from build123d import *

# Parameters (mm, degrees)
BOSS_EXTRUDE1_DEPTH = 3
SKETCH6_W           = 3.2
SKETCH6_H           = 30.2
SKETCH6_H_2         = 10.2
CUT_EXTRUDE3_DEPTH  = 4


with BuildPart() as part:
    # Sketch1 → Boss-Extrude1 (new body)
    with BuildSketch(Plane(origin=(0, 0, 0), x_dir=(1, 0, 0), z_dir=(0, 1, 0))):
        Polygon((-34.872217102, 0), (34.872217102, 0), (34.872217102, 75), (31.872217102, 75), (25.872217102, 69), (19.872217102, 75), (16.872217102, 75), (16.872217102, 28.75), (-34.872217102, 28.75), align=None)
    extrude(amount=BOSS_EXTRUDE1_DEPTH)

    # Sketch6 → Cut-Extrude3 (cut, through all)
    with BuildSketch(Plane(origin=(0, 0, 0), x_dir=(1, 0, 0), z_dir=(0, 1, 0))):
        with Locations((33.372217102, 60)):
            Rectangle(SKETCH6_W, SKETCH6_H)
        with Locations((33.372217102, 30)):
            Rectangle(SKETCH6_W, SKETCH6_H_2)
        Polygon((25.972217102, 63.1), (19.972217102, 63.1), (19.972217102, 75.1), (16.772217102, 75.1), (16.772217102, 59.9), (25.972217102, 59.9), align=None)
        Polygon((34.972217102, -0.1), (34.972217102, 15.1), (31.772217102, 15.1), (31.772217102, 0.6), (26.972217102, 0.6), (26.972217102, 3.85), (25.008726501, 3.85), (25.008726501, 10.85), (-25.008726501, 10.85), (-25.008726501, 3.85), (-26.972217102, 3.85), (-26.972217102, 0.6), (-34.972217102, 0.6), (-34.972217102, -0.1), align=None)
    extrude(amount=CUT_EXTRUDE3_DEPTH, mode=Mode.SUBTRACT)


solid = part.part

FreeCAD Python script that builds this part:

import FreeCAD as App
import Part
import Sketcher

V = App.Vector

doc = App.newDocument("Part")
body = doc.addObject("PartDesign::Body", "Body")

# Sketch on XZ plane
sketch1 = body.newObject("Sketcher::SketchObject", "Sketch")
sketch1.AttachmentSupport = (doc.getObject("XZ_Plane"), [""])
sketch1.MapMode = "FlatFace"
sketch1.addGeometry(Part.LineSegment(V(-34.872217, 0, 0), V(34.872217, 0, 0)), False)
sketch1.addGeometry(Part.LineSegment(V(34.872217, 0, 0), V(34.872217, -75, 0)), False)
sketch1.addGeometry(Part.LineSegment(V(34.872217, -75, 0), V(31.872217, -75, 0)), False)
sketch1.addGeometry(Part.LineSegment(V(31.872217, -75, 0), V(25.872217, -69, 0)), False)
sketch1.addGeometry(Part.LineSegment(V(25.872217, -69, 0), V(19.872217, -75, 0)), False)
sketch1.addGeometry(Part.LineSegment(V(19.872217, -75, 0), V(16.872217, -75, 0)), False)
sketch1.addGeometry(Part.LineSegment(V(16.872217, -75, 0), V(16.872217, -28.75, 0)), False)
sketch1.addGeometry(Part.LineSegment(V(16.872217, -28.75, 0), V(-34.872217, -28.75, 0)), False)
sketch1.addGeometry(Part.LineSegment(V(-34.872217, -28.75, 0), V(-34.872217, 0, 0)), False)
sketch1.addConstraint(Sketcher.Constraint("Coincident", 0, 2, 1, 1))
sketch1.addConstraint(Sketcher.Constraint("Coincident", 1, 2, 2, 1))
sketch1.addConstraint(Sketcher.Constraint("Coincident", 2, 2, 3, 1))
sketch1.addConstraint(Sketcher.Constraint("Coincident", 3, 2, 4, 1))
sketch1.addConstraint(Sketcher.Constraint("Coincident", 4, 2, 5, 1))
sketch1.addConstraint(Sketcher.Constraint("Coincident", 5, 2, 6, 1))
sketch1.addConstraint(Sketcher.Constraint("Coincident", 6, 2, 7, 1))
sketch1.addConstraint(Sketcher.Constraint("Coincident", 7, 2, 8, 1))
sketch1.addConstraint(Sketcher.Constraint("Coincident", 8, 2, 0, 1))
sketch1.addConstraint(Sketcher.Constraint("Horizontal", 0))
sketch1.addConstraint(Sketcher.Constraint("Vertical", 1))
sketch1.addConstraint(Sketcher.Constraint("Horizontal", 2))
sketch1.addConstraint(Sketcher.Constraint("Horizontal", 5))
sketch1.addConstraint(Sketcher.Constraint("Vertical", 6))
sketch1.addConstraint(Sketcher.Constraint("Horizontal", 7))
sketch1.addConstraint(Sketcher.Constraint("Vertical", 8))
sketch1.addConstraint(Sketcher.Constraint("Symmetric", 0, 2, 8, 2, -1, 1))
sketch1.addConstraint(Sketcher.Constraint("Perpendicular", 3, 4))
sketch1.addConstraint(Sketcher.Constraint("Horizontal", 2, 2, 4, 2))
sketch1.addConstraint(Sketcher.Constraint("Equal", 2, 5))
sketch1.addConstraint(Sketcher.Constraint("Equal", 3, 4))
sketch1.addConstraint(Sketcher.Constraint("DistanceX", 2, 2, 2, 1, 3.0))
sketch1.addConstraint(Sketcher.Constraint("DistanceY", 1, 2, 1, 1, 75.0))
sketch1.addConstraint(Sketcher.Constraint("DistanceY", 3, 2, -1, 1, 69.0))
sketch1.addConstraint(Sketcher.Constraint("DistanceY", 6, 1, 6, 2, 46.25))
sketch1.addConstraint(Sketcher.Constraint("DistanceX", 0, 1, 0, 2, 69.744434))
pad1 = body.newObject("PartDesign::Pad", "Pad")
pad1.Profile = sketch1
pad1.Length = 3
pad1.Reversed = True

# Sketch on XZ plane
sketch2 = body.newObject("Sketcher::SketchObject", "Sketch001")
sketch2.AttachmentSupport = (doc.getObject("XZ_Plane"), [""])
sketch2.MapMode = "FlatFace"
sketch2.addGeometry(Part.LineSegment(V(31.772217, -75.1, 0), V(31.772217, -44.9, 0)), False)
sketch2.addGeometry(Part.LineSegment(V(31.772217, -44.9, 0), V(34.972217, -44.9, 0)), False)
sketch2.addGeometry(Part.LineSegment(V(34.972217, -44.9, 0), V(34.972217, -75.1, 0)), False)
sketch2.addGeometry(Part.LineSegment(V(34.972217, -75.1, 0), V(31.772217, -75.1, 0)), False)
sketch2.addGeometry(Part.LineSegment(V(31.772217, -35.1, 0), V(31.772217, -24.9, 0)), False)
sketch2.addGeometry(Part.LineSegment(V(31.772217, -24.9, 0), V(34.972217, -24.9, 0)), False)
sketch2.addGeometry(Part.LineSegment(V(34.972217, -24.9, 0), V(34.972217, -35.1, 0)), False)
sketch2.addGeometry(Part.LineSegment(V(34.972217, -35.1, 0), V(31.772217, -35.1, 0)), False)
sketch2.addGeometry(Part.LineSegment(V(25.972217, -63.1, 0), V(19.972217, -63.1, 0)), False)
sketch2.addGeometry(Part.LineSegment(V(19.972217, -63.1, 0), V(19.972217, -75.1, 0)), False)
sketch2.addGeometry(Part.LineSegment(V(19.972217, -75.1, 0), V(16.772217, -75.1, 0)), False)
sketch2.addGeometry(Part.LineSegment(V(16.772217, -75.1, 0), V(16.772217, -59.9, 0)), False)
sketch2.addGeometry(Part.LineSegment(V(16.772217, -59.9, 0), V(25.972217, -59.9, 0)), False)
sketch2.addGeometry(Part.LineSegment(V(25.972217, -59.9, 0), V(25.972217, -63.1, 0)), False)
sketch2.addGeometry(Part.LineSegment(V(34.972217, 0.1, 0), V(34.972217, -15.1, 0)), False)
sketch2.addGeometry(Part.LineSegment(V(34.972217, -15.1, 0), V(31.772217, -15.1, 0)), False)
sketch2.addGeometry(Part.LineSegment(V(31.772217, -15.1, 0), V(31.772217, -0.6, 0)), False)
sketch2.addGeometry(Part.LineSegment(V(31.772217, -0.6, 0), V(26.972217, -0.6, 0)), False)
sketch2.addGeometry(Part.LineSegment(V(26.972217, -0.6, 0), V(26.972217, -3.85, 0)), False)
sketch2.addGeometry(Part.LineSegment(V(26.972217, -3.85, 0), V(25.008727, -3.85, 0)), False)
sketch2.addGeometry(Part.LineSegment(V(25.008727, -3.85, 0), V(25.008727, -10.85, 0)), False)
sketch2.addGeometry(Part.LineSegment(V(25.008727, -10.85, 0), V(-25.008727, -10.85, 0)), False)
sketch2.addGeometry(Part.LineSegment(V(-25.008727, -10.85, 0), V(-25.008727, -3.85, 0)), False)
sketch2.addGeometry(Part.LineSegment(V(-25.008727, -3.85, 0), V(-26.972217, -3.85, 0)), False)
sketch2.addGeometry(Part.LineSegment(V(-26.972217, -3.85, 0), V(-26.972217, -0.6, 0)), False)
sketch2.addGeometry(Part.LineSegment(V(-26.972217, -0.6, 0), V(-34.972217, -0.6, 0)), False)
sketch2.addGeometry(Part.LineSegment(V(-34.972217, -0.6, 0), V(-34.972217, 0.1, 0)), False)
sketch2.addGeometry(Part.LineSegment(V(-34.972217, 0.1, 0), V(34.972217, 0.1, 0)), False)
sketch2.addConstraint(Sketcher.Constraint("Coincident", 0, 2, 1, 1))
sketch2.addConstraint(Sketcher.Constraint("Coincident", 1, 2, 2, 1))
sketch2.addConstraint(Sketcher.Constraint("Coincident", 2, 2, 3, 1))
sketch2.addConstraint(Sketcher.Constraint("Coincident", 3, 2, 0, 1))
sketch2.addConstraint(Sketcher.Constraint("Coincident", 4, 2, 5, 1))
sketch2.addConstraint(Sketcher.Constraint("Coincident", 5, 2, 6, 1))
sketch2.addConstraint(Sketcher.Constraint("Coincident", 6, 2, 7, 1))
sketch2.addConstraint(Sketcher.Constraint("Coincident", 7, 2, 4, 1))
sketch2.addConstraint(Sketcher.Constraint("Coincident", 8, 2, 9, 1))
sketch2.addConstraint(Sketcher.Constraint("Coincident", 9, 2, 10, 1))
sketch2.addConstraint(Sketcher.Constraint("Coincident", 10, 2, 11, 1))
sketch2.addConstraint(Sketcher.Constraint("Coincident", 11, 2, 12, 1))
sketch2.addConstraint(Sketcher.Constraint("Coincident", 12, 2, 13, 1))
sketch2.addConstraint(Sketcher.Constraint("Coincident", 13, 2, 8, 1))
sketch2.addConstraint(Sketcher.Constraint("Coincident", 14, 2, 15, 1))
sketch2.addConstraint(Sketcher.Constraint("Coincident", 15, 2, 16, 1))
sketch2.addConstraint(Sketcher.Constraint("Coincident", 16, 2, 17, 1))
sketch2.addConstraint(Sketcher.Constraint("Coincident", 17, 2, 18, 1))
sketch2.addConstraint(Sketcher.Constraint("Coincident", 18, 2, 19, 1))
sketch2.addConstraint(Sketcher.Constraint("Coincident", 19, 2, 20, 1))
sketch2.addConstraint(Sketcher.Constraint("Coincident", 20, 2, 21, 1))
sketch2.addConstraint(Sketcher.Constraint("Coincident", 21, 2, 22, 1))
sketch2.addConstraint(Sketcher.Constraint("Coincident", 22, 2, 23, 1))
sketch2.addConstraint(Sketcher.Constraint("Coincident", 23, 2, 24, 1))
sketch2.addConstraint(Sketcher.Constraint("Coincident", 24, 2, 25, 1))
sketch2.addConstraint(Sketcher.Constraint("Coincident", 25, 2, 26, 1))
sketch2.addConstraint(Sketcher.Constraint("Coincident", 26, 2, 27, 1))
sketch2.addConstraint(Sketcher.Constraint("Coincident", 27, 2, 14, 1))
sketch2.addConstraint(Sketcher.Constraint("Vertical", 0))
sketch2.addConstraint(Sketcher.Constraint("Horizontal", 1))
sketch2.addConstraint(Sketcher.Constraint("Vertical", 2))
sketch2.addConstraint(Sketcher.Constraint("Horizontal", 3))
sketch2.addConstraint(Sketcher.Constraint("Vertical", 4))
sketch2.addConstraint(Sketcher.Constraint("Horizontal", 5))
sketch2.addConstraint(Sketcher.Constraint("Vertical", 6))
sketch2.addConstraint(Sketcher.Constraint("Horizontal", 7))
sketch2.addConstraint(Sketcher.Constraint("Horizontal", 8))
sketch2.addConstraint(Sketcher.Constraint("Vertical", 9))
sketch2.addConstraint(Sketcher.Constraint("Horizontal", 10))
sketch2.addConstraint(Sketcher.Constraint("Vertical", 11))
sketch2.addConstraint(Sketcher.Constraint("Horizontal", 12))
sketch2.addConstraint(Sketcher.Constraint("Vertical", 13))
sketch2.addConstraint(Sketcher.Constraint("Vertical", 14))
sketch2.addConstraint(Sketcher.Constraint("Horizontal", 15))
sketch2.addConstraint(Sketcher.Constraint("Vertical", 16))
sketch2.addConstraint(Sketcher.Constraint("Horizontal", 17))
sketch2.addConstraint(Sketcher.Constraint("Vertical", 18))
sketch2.addConstraint(Sketcher.Constraint("Horizontal", 19))
sketch2.addConstraint(Sketcher.Constraint("Vertical", 20))
sketch2.addConstraint(Sketcher.Constraint("Horizontal", 21))
sketch2.addConstraint(Sketcher.Constraint("Vertical", 22))
sketch2.addConstraint(Sketcher.Constraint("Horizontal", 23))
sketch2.addConstraint(Sketcher.Constraint("Vertical", 24))
sketch2.addConstraint(Sketcher.Constraint("Horizontal", 25))
sketch2.addConstraint(Sketcher.Constraint("Vertical", 26))
sketch2.addConstraint(Sketcher.Constraint("Horizontal", 27))
sketch2.addConstraint(Sketcher.Constraint("Symmetric", 19, 2, 22, 2, -2))
sketch2.addConstraint(Sketcher.Constraint("Symmetric", 17, 2, 24, 2, -2))
sketch2.addConstraint(Sketcher.Constraint("Horizontal", 3, 2, 9, 2))
sketch2.addConstraint(Sketcher.Constraint("Vertical", 3, 2, 4, 2))
sketch2.addConstraint(Sketcher.Constraint("Vertical", 2, 2, 5, 2))
sketch2.addConstraint(Sketcher.Constraint("Vertical", 6, 2, 14, 2))
sketch2.addConstraint(Sketcher.Constraint("Vertical", 7, 2, 15, 2))
sketch2.addConstraint(Sketcher.Constraint("Equal", 7, 10))
sketch2.addConstraint(Sketcher.Constraint("Equal", 15, 13))
sketch2.addConstraint(Sketcher.Constraint("Equal", 11, 14))
sketch2.addConstraint(Sketcher.Constraint("DistanceX", 8, 2, 8, 1, 6.0))
sketch2.addConstraint(Sketcher.Constraint("DistanceX", 25, 2, 25, 1, 8.0))
sketch2.addConstraint(Sketcher.Constraint("DistanceY", 9, 2, 9, 1, 12.0))
sketch2.addConstraint(Sketcher.Constraint("DistanceY", 20, 2, 20, 1, 7.0))
sketch2.addConstraint(Sketcher.Constraint("DistanceX", 1, 1, 1, 2, 3.2))
sketch2.addConstraint(Sketcher.Constraint("DistanceX", 17, 2, 17, 1, 4.8))
sketch2.addConstraint(Sketcher.Constraint("DistanceY", 0, 1, 0, 2, 30.2))
sketch2.addConstraint(Sketcher.Constraint("DistanceY", 4, 1, 4, 2, 10.2))
sketch2.addConstraint(Sketcher.Constraint("DistanceY", 16, 1, 16, 2, 14.5))
sketch2.addConstraint(Sketcher.Constraint("DistanceY", 0, 2, 4, 2, 20.0))
sketch2.addConstraint(Sketcher.Constraint("DistanceX", 8, 2, 2, 2, 15.0))
sketch2.addConstraint(Sketcher.Constraint("DistanceY", 6, 2, 14, 2, 20.0))
sketch2.addConstraint(Sketcher.Constraint("DistanceY", 18, 2, 18, 1, 3.25))
sketch2.addConstraint(Sketcher.Constraint("DistanceY", 0, 2, -1, 1, 44.9))
sketch2.addConstraint(Sketcher.Constraint("DistanceX", 19, 2, 19, 1, 1.963491))
sketch2.addConstraint(Sketcher.Constraint("DistanceX", 21, 2, 21, 1, 50.017453))
pocket1 = body.newObject("PartDesign::Pocket", "Pocket")
pocket1.Profile = sketch2
pocket1.Type = "ThroughAll"

doc.recompute()
